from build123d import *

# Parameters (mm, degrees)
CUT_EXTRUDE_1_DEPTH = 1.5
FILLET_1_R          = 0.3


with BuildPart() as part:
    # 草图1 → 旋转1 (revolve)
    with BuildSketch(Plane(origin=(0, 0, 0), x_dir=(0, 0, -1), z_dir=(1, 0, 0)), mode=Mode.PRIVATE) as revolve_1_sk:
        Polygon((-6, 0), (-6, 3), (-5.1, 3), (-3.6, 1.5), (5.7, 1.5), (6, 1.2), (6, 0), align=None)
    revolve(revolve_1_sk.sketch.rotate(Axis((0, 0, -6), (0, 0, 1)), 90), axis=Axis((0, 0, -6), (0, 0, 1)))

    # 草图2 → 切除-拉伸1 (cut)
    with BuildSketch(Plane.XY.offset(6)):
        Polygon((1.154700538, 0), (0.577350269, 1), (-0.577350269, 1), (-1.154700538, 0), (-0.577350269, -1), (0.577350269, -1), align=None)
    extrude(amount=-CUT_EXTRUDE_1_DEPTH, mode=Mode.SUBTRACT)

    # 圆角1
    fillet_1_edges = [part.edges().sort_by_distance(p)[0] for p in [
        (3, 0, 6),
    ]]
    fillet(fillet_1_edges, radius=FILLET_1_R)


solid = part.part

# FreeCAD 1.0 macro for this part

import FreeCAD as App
import Part
import Sketcher
Q = App.Units.Quantity


def edges_at(feature, points):
    """Names of the edges that pass closest to the given points."""
    edges = feature.Shape.Edges
    near = lambda p: min(range(len(edges)), key=lambda i: edges[i].distToShape(Part.Vertex(*p))[0])
    return sorted({f"Edge{near(p) + 1}" for p in points})


def add_polygon(sketch, points):
    """Adds a closed chain of lines whose ends are joined by coincident constraints."""
    first, n = sketch.GeometryCount, len(points)
    for a, b in zip(points, points[1:] + points[:1]):
        sketch.addGeometry(Part.LineSegment(App.Vector(*a, 0), App.Vector(*b, 0)), False)
    for i in range(n):
        sketch.addConstraint(Sketcher.Constraint("Coincident", first + i, 2, first + (i + 1) % n, 1))

doc = App.newDocument("Part")
body = doc.addObject("PartDesign::Body", "Body")

# Sketch on YZ plane
sketch1 = body.newObject("Sketcher::SketchObject", "Sketch")
sketch1.AttachmentSupport = (doc.getObject("YZ_Plane"), [""])
sketch1.MapMode = "FlatFace"
add_polygon(sketch1, [(3, 6), (0, 6), (0, -6), (1.2, -6), (1.5, -5.7), (1.5, 3.6), (3, 5.1)])  # lines 0-6
sketch1.addConstraint([
    Sketcher.Constraint("Horizontal", 0),
    Sketcher.Constraint("Vertical", 1),
    Sketcher.Constraint("Horizontal", 2),
    Sketcher.Constraint("Vertical", 4),
    Sketcher.Constraint("Vertical", 6),
    Sketcher.Constraint("Symmetric", 0, 2, 1, 2, -1, 1),
    Sketcher.Constraint("Parallel", 3, 5),
    Sketcher.Constraint("DistanceX", 0, 2, 0, 1, Q("3 mm")),
    Sketcher.Constraint("DistanceY", 1, 2, 1, 1, Q("12 mm")),
    Sketcher.Constraint("Angle", 3, Q("45 deg")),
    Sketcher.Constraint("DistanceX", 2, 1, 2, 2, Q("1.2 mm")),
    Sketcher.Constraint("DistanceY", 4, 1, 4, 2, Q("9.3 mm")),
    Sketcher.Constraint("DistanceX", -1, 1, 3, 2, Q("1.5 mm")),
])
revolution = body.newObject("PartDesign::Revolution", "Revolution")
revolution.Profile = sketch1
revolution.ReferenceAxis = (sketch1, ["V_Axis"])
revolution.Angle = 360

# Sketch on XY plane
sketch2 = body.newObject("Sketcher::SketchObject", "Sketch001")
sketch2.AttachmentSupport = (doc.getObject("XY_Plane"), [""])
sketch2.MapMode = "FlatFace"
sketch2.AttachmentOffset = App.Placement(App.Vector(0, 0, 6), App.Rotation())
add_polygon(sketch2, [(1.2, 0), (0.6, 1), (-0.6, 1), (-1.2, 0), (-0.6, -1), (0.6, -1)])  # lines 0-5
sketch2.addConstraint([
    Sketcher.Constraint("Horizontal", 1),
    Sketcher.Constraint("Horizontal", 4),
    Sketcher.Constraint("Symmetric", 0, 2, 3, 2, -1, 1),
    Sketcher.Constraint("Symmetric", 2, 2, 5, 2, -1, 1),
    Sketcher.Constraint("PointOnObject", 2, 2, -1),
    Sketcher.Constraint("Parallel", 2, 5),
    Sketcher.Constraint("Vertical", 1, 2, 3, 2),
    Sketcher.Constraint("Angle", 0, Q("120 deg")),
    Sketcher.Constraint("DistanceY", -1, 1, 0, 2, Q("1 mm")),
    Sketcher.Constraint("DistanceX", 1, 2, 1, 1, Q("1.154701 mm")),
])
pocket1 = body.newObject("PartDesign::Pocket", "Pocket")
pocket1.Profile = sketch2
pocket1.Length = 1.5
doc.recompute()

fillet = body.newObject("PartDesign::Fillet", "Fillet")
fillet.Base = (pocket1, edges_at(pocket1, [(3, 0, 6)]))
fillet.Radius = 0.3

doc.recompute()
